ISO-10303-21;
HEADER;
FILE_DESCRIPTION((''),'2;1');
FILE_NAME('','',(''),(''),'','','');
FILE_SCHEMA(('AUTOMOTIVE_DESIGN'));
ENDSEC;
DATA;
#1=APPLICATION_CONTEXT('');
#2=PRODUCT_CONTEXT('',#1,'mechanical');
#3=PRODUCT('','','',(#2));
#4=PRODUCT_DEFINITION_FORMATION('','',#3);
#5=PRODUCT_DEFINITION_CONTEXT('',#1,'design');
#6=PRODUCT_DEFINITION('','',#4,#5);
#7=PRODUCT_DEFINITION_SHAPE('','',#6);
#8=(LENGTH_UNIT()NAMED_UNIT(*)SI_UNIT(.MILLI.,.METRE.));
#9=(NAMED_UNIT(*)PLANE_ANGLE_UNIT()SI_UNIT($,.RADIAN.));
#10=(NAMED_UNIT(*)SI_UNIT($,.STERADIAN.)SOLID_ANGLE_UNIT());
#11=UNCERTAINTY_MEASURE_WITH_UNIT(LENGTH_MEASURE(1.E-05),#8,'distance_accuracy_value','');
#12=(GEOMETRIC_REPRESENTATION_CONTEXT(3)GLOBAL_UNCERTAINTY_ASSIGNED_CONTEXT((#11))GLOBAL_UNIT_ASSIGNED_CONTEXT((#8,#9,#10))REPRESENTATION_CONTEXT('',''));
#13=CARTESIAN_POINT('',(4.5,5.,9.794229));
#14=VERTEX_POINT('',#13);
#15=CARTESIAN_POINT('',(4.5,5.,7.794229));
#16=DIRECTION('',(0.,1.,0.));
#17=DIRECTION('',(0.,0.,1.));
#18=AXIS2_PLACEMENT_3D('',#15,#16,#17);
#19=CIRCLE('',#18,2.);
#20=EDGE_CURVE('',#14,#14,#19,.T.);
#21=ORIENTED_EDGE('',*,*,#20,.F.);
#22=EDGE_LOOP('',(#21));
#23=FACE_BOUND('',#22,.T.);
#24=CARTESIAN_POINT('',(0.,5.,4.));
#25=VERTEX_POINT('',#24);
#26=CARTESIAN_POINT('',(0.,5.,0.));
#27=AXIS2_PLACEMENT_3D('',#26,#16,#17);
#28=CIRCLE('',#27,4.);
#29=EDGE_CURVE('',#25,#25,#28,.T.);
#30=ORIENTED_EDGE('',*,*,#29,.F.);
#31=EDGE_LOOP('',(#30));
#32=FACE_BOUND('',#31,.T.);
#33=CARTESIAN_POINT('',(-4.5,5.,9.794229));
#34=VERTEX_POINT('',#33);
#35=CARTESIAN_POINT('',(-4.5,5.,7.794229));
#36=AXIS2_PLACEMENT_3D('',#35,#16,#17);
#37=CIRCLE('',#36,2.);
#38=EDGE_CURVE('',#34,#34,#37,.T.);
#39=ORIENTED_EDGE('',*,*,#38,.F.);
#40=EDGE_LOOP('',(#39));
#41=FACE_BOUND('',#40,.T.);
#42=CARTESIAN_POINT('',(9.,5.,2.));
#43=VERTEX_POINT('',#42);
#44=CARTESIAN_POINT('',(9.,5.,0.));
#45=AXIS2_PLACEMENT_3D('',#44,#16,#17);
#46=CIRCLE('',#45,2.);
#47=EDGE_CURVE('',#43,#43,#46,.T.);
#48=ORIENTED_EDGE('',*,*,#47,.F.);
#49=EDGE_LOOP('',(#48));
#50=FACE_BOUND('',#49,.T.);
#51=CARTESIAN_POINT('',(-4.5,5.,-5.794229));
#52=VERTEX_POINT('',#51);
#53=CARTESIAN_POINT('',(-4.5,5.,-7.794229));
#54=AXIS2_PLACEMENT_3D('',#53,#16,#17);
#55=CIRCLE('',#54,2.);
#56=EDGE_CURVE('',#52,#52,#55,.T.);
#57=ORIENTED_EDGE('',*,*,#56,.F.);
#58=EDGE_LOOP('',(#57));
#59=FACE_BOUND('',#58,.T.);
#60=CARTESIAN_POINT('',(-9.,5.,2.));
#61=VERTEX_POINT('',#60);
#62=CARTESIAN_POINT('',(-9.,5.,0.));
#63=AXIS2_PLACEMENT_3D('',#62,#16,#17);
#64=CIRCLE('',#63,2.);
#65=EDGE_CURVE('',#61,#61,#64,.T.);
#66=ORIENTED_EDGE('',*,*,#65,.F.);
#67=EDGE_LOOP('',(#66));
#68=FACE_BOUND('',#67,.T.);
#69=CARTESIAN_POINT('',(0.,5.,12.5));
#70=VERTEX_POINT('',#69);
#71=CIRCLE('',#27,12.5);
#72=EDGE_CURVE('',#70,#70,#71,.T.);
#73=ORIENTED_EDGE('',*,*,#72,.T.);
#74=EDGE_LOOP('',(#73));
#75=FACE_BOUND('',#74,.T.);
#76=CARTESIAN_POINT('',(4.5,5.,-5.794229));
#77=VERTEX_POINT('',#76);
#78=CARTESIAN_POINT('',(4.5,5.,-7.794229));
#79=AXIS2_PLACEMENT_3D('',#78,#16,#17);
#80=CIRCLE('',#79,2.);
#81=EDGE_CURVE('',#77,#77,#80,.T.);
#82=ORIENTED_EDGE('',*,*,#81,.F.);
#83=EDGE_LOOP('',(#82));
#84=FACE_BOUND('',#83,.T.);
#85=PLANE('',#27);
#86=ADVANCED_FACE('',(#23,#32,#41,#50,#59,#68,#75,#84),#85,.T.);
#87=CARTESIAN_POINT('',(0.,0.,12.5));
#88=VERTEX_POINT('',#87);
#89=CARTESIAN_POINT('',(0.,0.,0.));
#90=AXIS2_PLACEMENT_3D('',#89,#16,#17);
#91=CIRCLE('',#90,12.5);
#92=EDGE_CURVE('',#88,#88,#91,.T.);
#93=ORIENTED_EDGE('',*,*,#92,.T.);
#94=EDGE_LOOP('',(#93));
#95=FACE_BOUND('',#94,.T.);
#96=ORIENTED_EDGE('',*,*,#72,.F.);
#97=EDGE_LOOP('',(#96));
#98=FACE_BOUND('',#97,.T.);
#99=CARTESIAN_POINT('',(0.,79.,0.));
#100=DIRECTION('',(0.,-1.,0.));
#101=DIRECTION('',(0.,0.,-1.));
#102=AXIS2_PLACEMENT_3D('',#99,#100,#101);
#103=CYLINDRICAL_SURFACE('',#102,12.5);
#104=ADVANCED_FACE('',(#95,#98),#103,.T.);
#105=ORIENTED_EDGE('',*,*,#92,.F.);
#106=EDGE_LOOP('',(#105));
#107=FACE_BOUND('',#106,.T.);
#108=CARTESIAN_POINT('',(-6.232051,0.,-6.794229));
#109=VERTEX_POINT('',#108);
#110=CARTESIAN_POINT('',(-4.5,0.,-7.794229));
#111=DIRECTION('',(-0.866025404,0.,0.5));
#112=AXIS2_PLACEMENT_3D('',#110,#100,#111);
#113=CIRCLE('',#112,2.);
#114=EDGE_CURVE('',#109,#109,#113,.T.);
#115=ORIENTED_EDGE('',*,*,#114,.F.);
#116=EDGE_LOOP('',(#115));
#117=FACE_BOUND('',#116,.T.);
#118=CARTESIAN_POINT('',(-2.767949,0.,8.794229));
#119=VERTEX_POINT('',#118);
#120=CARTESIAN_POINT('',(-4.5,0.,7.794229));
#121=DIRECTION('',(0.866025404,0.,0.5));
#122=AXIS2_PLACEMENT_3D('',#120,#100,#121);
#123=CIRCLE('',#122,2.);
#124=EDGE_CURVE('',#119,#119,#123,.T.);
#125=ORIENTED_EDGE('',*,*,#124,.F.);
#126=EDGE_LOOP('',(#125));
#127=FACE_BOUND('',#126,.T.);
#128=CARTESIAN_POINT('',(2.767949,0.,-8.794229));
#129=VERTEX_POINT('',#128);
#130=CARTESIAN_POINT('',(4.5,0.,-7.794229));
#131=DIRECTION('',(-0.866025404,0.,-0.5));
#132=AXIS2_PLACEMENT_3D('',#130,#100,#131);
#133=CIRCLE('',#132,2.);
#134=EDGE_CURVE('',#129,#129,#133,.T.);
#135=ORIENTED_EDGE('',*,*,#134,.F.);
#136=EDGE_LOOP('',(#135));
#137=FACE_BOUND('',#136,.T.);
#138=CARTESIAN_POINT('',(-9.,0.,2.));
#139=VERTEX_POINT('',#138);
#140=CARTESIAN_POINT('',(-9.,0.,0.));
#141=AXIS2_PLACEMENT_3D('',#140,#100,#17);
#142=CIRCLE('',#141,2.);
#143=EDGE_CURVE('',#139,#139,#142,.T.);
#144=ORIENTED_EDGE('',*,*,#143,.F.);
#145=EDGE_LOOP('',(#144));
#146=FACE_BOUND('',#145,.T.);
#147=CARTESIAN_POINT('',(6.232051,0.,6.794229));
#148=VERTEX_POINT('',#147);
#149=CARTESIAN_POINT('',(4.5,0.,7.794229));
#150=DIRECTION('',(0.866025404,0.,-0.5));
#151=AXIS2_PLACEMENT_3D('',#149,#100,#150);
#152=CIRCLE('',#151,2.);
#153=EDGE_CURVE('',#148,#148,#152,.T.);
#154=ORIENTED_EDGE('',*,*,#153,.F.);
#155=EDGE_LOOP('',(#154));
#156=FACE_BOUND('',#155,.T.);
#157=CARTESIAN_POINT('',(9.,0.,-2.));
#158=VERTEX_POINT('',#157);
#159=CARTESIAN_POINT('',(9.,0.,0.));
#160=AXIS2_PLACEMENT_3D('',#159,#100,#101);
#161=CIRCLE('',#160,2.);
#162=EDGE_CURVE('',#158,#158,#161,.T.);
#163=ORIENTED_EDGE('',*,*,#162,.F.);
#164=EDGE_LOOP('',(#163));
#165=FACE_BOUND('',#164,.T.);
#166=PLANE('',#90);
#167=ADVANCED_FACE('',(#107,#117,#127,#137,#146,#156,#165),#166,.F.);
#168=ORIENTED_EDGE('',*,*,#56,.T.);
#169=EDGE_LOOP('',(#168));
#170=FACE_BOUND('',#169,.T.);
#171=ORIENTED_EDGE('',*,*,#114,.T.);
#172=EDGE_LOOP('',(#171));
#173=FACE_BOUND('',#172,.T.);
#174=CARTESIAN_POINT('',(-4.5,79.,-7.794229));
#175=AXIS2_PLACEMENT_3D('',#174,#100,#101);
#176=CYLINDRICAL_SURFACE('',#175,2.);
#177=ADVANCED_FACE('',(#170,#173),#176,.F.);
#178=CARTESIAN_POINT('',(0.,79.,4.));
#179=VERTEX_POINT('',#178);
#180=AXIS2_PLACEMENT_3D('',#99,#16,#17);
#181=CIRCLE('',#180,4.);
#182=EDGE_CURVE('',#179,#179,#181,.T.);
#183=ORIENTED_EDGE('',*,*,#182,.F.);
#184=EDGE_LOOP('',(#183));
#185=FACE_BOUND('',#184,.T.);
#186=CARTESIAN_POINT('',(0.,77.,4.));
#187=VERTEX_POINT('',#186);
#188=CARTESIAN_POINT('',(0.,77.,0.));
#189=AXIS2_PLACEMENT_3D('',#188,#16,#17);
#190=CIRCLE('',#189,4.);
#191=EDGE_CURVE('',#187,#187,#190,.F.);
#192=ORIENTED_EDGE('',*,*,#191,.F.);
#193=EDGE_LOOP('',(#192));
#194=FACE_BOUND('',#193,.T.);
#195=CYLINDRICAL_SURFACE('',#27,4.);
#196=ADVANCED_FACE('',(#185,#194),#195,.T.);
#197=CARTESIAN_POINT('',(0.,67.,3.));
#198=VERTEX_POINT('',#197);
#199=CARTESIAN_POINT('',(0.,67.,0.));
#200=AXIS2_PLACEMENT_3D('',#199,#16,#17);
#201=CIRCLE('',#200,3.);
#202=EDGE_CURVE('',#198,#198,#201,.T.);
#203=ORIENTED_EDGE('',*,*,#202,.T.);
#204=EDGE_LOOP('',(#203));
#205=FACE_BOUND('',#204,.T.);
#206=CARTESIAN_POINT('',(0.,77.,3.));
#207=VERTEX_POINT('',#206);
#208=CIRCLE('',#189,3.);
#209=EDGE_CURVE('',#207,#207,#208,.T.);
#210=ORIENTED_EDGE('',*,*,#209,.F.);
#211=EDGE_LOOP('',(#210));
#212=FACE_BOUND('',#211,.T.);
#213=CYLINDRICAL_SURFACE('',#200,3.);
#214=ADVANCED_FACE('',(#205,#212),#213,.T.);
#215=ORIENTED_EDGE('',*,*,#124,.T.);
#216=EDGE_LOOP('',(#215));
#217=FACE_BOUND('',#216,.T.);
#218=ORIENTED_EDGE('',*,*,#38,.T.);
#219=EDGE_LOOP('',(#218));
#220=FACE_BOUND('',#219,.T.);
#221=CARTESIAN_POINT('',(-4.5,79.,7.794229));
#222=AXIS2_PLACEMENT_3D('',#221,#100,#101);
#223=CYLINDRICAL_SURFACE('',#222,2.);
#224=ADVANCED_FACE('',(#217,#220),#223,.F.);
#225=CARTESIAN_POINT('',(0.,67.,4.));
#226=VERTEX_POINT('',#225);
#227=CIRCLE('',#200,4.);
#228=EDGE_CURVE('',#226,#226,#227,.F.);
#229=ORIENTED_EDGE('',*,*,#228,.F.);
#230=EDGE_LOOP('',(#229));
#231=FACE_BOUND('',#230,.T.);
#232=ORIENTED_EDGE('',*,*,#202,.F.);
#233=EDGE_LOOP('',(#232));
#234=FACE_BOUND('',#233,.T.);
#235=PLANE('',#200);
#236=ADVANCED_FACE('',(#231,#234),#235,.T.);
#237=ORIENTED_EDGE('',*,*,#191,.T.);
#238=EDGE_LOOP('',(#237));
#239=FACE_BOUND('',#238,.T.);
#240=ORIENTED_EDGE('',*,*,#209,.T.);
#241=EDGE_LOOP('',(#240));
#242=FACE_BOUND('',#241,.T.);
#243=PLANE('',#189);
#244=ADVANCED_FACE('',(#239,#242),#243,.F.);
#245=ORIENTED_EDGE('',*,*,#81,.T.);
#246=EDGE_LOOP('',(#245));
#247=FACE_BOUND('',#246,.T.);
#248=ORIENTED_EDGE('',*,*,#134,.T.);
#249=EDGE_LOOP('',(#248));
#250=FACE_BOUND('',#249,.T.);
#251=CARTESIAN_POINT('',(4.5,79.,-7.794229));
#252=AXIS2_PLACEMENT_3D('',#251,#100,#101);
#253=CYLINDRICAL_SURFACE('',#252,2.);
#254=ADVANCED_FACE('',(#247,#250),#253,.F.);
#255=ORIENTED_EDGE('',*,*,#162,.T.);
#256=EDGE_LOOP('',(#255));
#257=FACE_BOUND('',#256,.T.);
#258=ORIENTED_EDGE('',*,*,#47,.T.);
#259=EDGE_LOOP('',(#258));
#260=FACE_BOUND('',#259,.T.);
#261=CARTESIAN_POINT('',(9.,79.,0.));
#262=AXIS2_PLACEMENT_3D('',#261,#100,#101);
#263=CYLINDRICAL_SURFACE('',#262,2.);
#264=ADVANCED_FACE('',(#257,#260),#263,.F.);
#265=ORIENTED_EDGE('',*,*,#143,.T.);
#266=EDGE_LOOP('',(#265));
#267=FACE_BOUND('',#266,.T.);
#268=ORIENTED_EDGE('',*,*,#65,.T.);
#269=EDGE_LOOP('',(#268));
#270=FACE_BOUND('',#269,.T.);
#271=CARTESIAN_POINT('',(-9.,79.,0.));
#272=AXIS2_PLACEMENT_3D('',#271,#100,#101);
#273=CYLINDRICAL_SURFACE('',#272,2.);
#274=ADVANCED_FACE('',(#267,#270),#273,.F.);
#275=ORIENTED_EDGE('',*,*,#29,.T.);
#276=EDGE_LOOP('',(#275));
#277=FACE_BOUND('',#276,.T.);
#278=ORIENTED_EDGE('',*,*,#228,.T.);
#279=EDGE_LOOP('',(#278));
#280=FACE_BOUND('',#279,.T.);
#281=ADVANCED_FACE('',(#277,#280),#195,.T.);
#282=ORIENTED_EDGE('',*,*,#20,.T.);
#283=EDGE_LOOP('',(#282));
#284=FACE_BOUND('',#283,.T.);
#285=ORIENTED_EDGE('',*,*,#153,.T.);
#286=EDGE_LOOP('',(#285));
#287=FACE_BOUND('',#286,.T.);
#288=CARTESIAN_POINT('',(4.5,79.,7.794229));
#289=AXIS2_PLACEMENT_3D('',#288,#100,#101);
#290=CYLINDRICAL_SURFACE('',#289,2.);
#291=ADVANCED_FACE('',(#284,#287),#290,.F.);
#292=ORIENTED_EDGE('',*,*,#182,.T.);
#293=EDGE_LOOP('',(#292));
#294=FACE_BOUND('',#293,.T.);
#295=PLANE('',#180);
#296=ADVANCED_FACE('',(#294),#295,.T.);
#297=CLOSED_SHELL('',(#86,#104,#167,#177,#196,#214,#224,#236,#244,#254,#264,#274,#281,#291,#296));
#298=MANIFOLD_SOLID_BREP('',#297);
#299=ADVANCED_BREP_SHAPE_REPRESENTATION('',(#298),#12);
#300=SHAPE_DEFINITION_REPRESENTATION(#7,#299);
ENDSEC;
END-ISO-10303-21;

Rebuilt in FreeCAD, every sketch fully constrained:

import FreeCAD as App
import Part
import Sketcher
from FreeCAD import Vector


def add_polygon(sketch, points):
    """Adds a closed chain of lines whose ends are joined by coincident constraints."""
    first, n = sketch.GeometryCount, len(points)
    for a, b in zip(points, points[1:] + points[:1]):
        sketch.addGeometry(Part.LineSegment(App.Vector(*a, 0), App.Vector(*b, 0)), False)
    for i in range(n):
        sketch.addConstraint(Sketcher.Constraint("Coincident", first + i, 2, first + (i + 1) % n, 1))

doc = App.newDocument("Part")
body = doc.addObject("PartDesign::Body", "Body")

# Sketch on XZ plane
sketch1 = body.newObject("Sketcher::SketchObject", "Sketch")
sketch1.AttachmentSupport = (doc.getObject("XZ_Plane"), [""])
sketch1.MapMode = "FlatFace"
sketch1.addGeometry(Part.Circle(Vector(0, 0, 0), Vector(0, 0, 1), 12.5), False)
sketch1.addConstraint([
    Sketcher.Constraint("Coincident", 0, 3, -1, 1),
    Sketcher.Constraint("Diameter", 0, 25.0),
])
pad1 = body.newObject("PartDesign::Pad", "Pad")
pad1.Profile = sketch1
pad1.Length = 79
pad1.Reversed = True

# Sketch on XZ plane
sketch2 = body.newObject("Sketcher::SketchObject", "Sketch001")
sketch2.AttachmentSupport = (doc.getObject("XZ_Plane"), [""])
sketch2.MapMode = "FlatFace"
sketch2.AttachmentOffset = App.Placement(Vector(0, 0, -77), App.Rotation())
add_polygon(sketch2, [(-22.155, -22.155), (-22.155, 22.155), (22.155, 22.155), (22.155, -22.155)])  # lines 0-3
sketch2.addGeometry(Part.Circle(Vector(0, 0, 0), Vector(0, 0, 1), 4), False)  # 4
sketch2.addConstraint([
    Sketcher.Constraint("Vertical", 0),
    Sketcher.Constraint("Horizontal", 1),
    Sketcher.Constraint("Vertical", 2),
    Sketcher.Constraint("Horizontal", 3),
    Sketcher.Constraint("Coincident", 4, 3, -1, 1),
    Sketcher.Constraint("Symmetric", 0, 2, 2, 2, -1, 1),
    Sketcher.Constraint("Equal", 3, 0),
    Sketcher.Constraint("Diameter", 4, 8.0),
    Sketcher.Constraint("DistanceX", 1, 1, 1, 2, 44.31),
])
pocket1 = body.newObject("PartDesign::Pocket", "Pocket")
pocket1.Profile = sketch2
pocket1.Length = 72
pocket1.Reversed = True

# Sketch on XZ plane
sketch3 = body.newObject("Sketcher::SketchObject", "Sketch002")
sketch3.AttachmentSupport = (doc.getObject("XZ_Plane"), [""])
sketch3.MapMode = "FlatFace"
sketch3.AttachmentOffset = App.Placement(Vector(0, 0, -77), App.Rotation())
add_polygon(sketch3, [(-22.155, -22.155), (-22.155, 22.155), (22.155, 22.155), (22.155, -22.155)])  # lines 0-3
sketch3.addGeometry(Part.Circle(Vector(0, 0, 0), Vector(0, 0, 1), 4), False)  # 4
sketch3.addConstraint([
    Sketcher.Constraint("Vertical", 0),
    Sketcher.Constraint("Horizontal", 1),
    Sketcher.Constraint("Vertical", 2),
    Sketcher.Constraint("Horizontal", 3),
    Sketcher.Constraint("Coincident", 4, 3, -1, 1),
    Sketcher.Constraint("Symmetric", 0, 2, 2, 2, -1, 1),
    Sketcher.Constraint("Equal", 3, 0),
    Sketcher.Constraint("Diameter", 4, 8.0),
    Sketcher.Constraint("DistanceX", 1, 1, 1, 2, 44.31),
])
pocket2 = body.newObject("PartDesign::Pocket", "Pocket001")
pocket2.Profile = sketch3
pocket2.Type = "ThroughAll"

# Sketch on XZ plane
sketch4 = body.newObject("Sketcher::SketchObject", "Sketch003")
sketch4.AttachmentSupport = (doc.getObject("XZ_Plane"), [""])
sketch4.MapMode = "FlatFace"
sketch4.AttachmentOffset = App.Placement(Vector(0, 0, -77), App.Rotation())
add_polygon(sketch4, [(-22.155, -22.155), (-22.155, 22.155), (22.155, 22.155), (22.155, -22.155)])  # lines 0-3
sketch4.addGeometry(Part.Circle(Vector(0, 0, 0), Vector(0, 0, 1), 3), False)  # 4
sketch4.addConstraint([
    Sketcher.Constraint("Vertical", 0),
    Sketcher.Constraint("Horizontal", 1),
    Sketcher.Constraint("Vertical", 2),
    Sketcher.Constraint("Horizontal", 3),
    Sketcher.Constraint("Coincident", 4, 3, -1, 1),
    Sketcher.Constraint("Symmetric", 0, 2, 2, 2, -1, 1),
    Sketcher.Constraint("Equal", 3, 0),
    Sketcher.Constraint("Diameter", 4, 6.0),
    Sketcher.Constraint("DistanceX", 1, 1, 1, 2, 44.31),
])
pocket3 = body.newObject("PartDesign::Pocket", "Pocket002")
pocket3.Profile = sketch4
pocket3.Length = 10
pocket3.Reversed = True

# Sketch on XZ plane
sketch5 = body.newObject("Sketcher::SketchObject", "Sketch004")
sketch5.AttachmentSupport = (doc.getObject("XZ_Plane"), [""])
sketch5.MapMode = "FlatFace"
sketch5.addGeometry(Part.Circle(Vector(9, 0, 0), Vector(0, 0, 1), 2), False)
sketch5.addConstraint([
    Sketcher.Constraint("PointOnObject", 0, 3, -1),
    Sketcher.Constraint("Diameter", 0, 4.0),
    Sketcher.Constraint("DistanceX", -1, 1, 0, 3, 9.0),
])
pocket4 = body.newObject("PartDesign::Pocket", "Pocket003")
pocket4.Profile = sketch5
pocket4.Type = "ThroughAll"
doc.recompute()

polarpattern = body.newObject("PartDesign::PolarPattern", "PolarPattern")
polarpattern.Originals = [pocket4]
polarpattern.Axis = (doc.getObject("Y_Axis"), [""])
polarpattern.Angle = 360
polarpattern.Occurrences = 6
body.Tip = polarpattern

doc.recompute()
